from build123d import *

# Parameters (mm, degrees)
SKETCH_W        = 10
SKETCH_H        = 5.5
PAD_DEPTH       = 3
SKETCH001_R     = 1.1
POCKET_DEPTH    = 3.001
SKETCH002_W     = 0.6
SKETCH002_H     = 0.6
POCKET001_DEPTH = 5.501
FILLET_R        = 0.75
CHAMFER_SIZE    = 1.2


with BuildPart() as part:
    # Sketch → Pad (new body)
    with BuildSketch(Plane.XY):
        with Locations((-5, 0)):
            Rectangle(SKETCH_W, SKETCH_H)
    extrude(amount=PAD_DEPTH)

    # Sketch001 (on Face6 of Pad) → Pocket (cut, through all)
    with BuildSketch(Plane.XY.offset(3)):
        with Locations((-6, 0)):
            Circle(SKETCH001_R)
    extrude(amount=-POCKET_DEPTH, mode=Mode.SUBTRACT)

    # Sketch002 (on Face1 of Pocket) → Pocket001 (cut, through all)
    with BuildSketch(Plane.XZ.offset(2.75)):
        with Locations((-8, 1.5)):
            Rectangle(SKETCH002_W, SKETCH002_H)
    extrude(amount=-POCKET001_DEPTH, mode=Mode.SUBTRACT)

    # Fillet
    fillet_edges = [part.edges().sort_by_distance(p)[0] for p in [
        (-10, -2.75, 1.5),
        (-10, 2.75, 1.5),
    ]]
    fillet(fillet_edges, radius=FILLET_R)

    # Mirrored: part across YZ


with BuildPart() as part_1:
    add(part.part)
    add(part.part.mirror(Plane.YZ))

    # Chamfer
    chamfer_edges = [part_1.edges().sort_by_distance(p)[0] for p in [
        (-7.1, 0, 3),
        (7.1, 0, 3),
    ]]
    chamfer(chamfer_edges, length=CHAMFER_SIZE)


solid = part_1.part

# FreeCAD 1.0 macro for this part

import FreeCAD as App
import Part
import Sketcher


def edges_at(feature, points):
    """Names of the edges that pass closest to the given points."""
    edges = feature.Shape.Edges
    near = lambda p: min(range(len(edges)), key=lambda i: edges[i].distToShape(Part.Vertex(*p))[0])
    return sorted({f"Edge{near(p) + 1}" for p in points})

doc = App.newDocument("Part")
body = doc.addObject("PartDesign::Body", "Body")

sketch1 = body.newObject("Sketcher::SketchObject", "Sketch")
sketch1.AttachmentSupport = (doc.getObject("XY_Plane"), [""])
sketch1.MapMode = "FlatFace"
sketch1.addGeometry(Part.LineSegment(App.Vector(-10, 3, 0), App.Vector(-10, -3, 0)), False)
sketch1.addGeometry(Part.LineSegment(App.Vector(-10, -3, 0), App.Vector(0, -3, 0)), False)
sketch1.addGeometry(Part.LineSegment(App.Vector(0, -3, 0), App.Vector(0, 3, 0)), False)
sketch1.addGeometry(Part.LineSegment(App.Vector(0, 3, 0), App.Vector(-10, 3, 0)), False)
sketch1.addConstraint(Sketcher.Constraint("Coincident", 0, 2, 1, 1))
sketch1.addConstraint(Sketcher.Constraint("Coincident", 1, 2, 2, 1))
sketch1.addConstraint(Sketcher.Constraint("Coincident", 2, 2, 3, 1))
sketch1.addConstraint(Sketcher.Constraint("Coincident", 3, 2, 0, 1))
sketch1.addConstraint(Sketcher.Constraint("Vertical", 0))
sketch1.addConstraint(Sketcher.Constraint("Horizontal", 1))
sketch1.addConstraint(Sketcher.Constraint("Vertical", 2))
sketch1.addConstraint(Sketcher.Constraint("Horizontal", 3))
sketch1.addConstraint(Sketcher.Constraint("Symmetric", 1, 2, 2, 2, -1, 1))
sketch1.addConstraint(Sketcher.Constraint("DistanceX", 1, 1, 1, 2, 10.0))
sketch1.addConstraint(Sketcher.Constraint("DistanceY", 0, 2, 0, 1, 5.5))
pad1 = body.newObject("PartDesign::Pad", "Pad")
pad1.Profile = sketch1
pad1.Length = 3

sketch2 = body.newObject("Sketcher::SketchObject", "Sketch001")
sketch2.AttachmentSupport = (doc.getObject("XY_Plane"), [""])
sketch2.MapMode = "FlatFace"
sketch2.AttachmentOffset = App.Placement(App.Vector(0, 0, 3), App.Rotation())
sketch2.addGeometry(Part.Circle(App.Vector(-6, 0, 0), App.Vector(0, 0, 1), 1.1), False)
sketch2.addConstraint(Sketcher.Constraint("PointOnObject", 0, 3, -1))
sketch2.addConstraint(Sketcher.Constraint("Diameter", 0, 2.2))
sketch2.addConstraint(Sketcher.Constraint("DistanceX", 0, 3, -1, 1, 6.0))
pocket1 = body.newObject("PartDesign::Pocket", "Pocket")
pocket1.Profile = sketch2
pocket1.Type = "ThroughAll"

sketch3 = body.newObject("Sketcher::SketchObject", "Sketch002")
sketch3.AttachmentSupport = (doc.getObject("XZ_Plane"), [""])
sketch3.MapMode = "FlatFace"
sketch3.AttachmentOffset = App.Placement(App.Vector(0, 0, 2.75), App.Rotation())
sketch3.addGeometry(Part.LineSegment(App.Vector(-8.3, 1.8, 0), App.Vector(-8.3, 1.2, 0)), False)
sketch3.addGeometry(Part.LineSegment(App.Vector(-8.3, 1.2, 0), App.Vector(-7.7, 1.2, 0)), False)
sketch3.addGeometry(Part.LineSegment(App.Vector(-7.7, 1.2, 0), App.Vector(-7.7, 1.8, 0)), False)
sketch3.addGeometry(Part.LineSegment(App.Vector(-7.7, 1.8, 0), App.Vector(-8.3, 1.8, 0)), False)
sketch3.addConstraint(Sketcher.Constraint("Coincident", 0, 2, 1, 1))
sketch3.addConstraint(Sketcher.Constraint("Coincident", 1, 2, 2, 1))
sketch3.addConstraint(Sketcher.Constraint("Coincident", 2, 2, 3, 1))
sketch3.addConstraint(Sketcher.Constraint("Coincident", 3, 2, 0, 1))
sketch3.addConstraint(Sketcher.Constraint("Vertical", 0))
sketch3.addConstraint(Sketcher.Constraint("Horizontal", 1))
sketch3.addConstraint(Sketcher.Constraint("Vertical", 2))
sketch3.addConstraint(Sketcher.Constraint("Horizontal", 3))
sketch3.addConstraint(Sketcher.Constraint("Equal", 3, 0))
sketch3.addConstraint(Sketcher.Constraint("DistanceX", 1, 1, 1, 2, 0.6))
sketch3.addConstraint(Sketcher.Constraint("DistanceX", 0, 2, -1, 1, 8.3))
sketch3.addConstraint(Sketcher.Constraint("DistanceY", -1, 1, 0, 2, 1.2))
pocket2 = body.newObject("PartDesign::Pocket", "Pocket001")
pocket2.Profile = sketch3
pocket2.Type = "ThroughAll"
doc.recompute()

fillet = body.newObject("PartDesign::Fillet", "Fillet")
fillet.Base = (pocket2, edges_at(pocket2, [(-10, -2.75, 1.5), (-10, 2.75, 1.5)]))
fillet.Radius = 0.75
body2 = doc.addObject("PartDesign::Body", "Body001")
doc.recompute()

body2.BaseFeature = body
doc.recompute()

mirroring = doc.addObject("Part::Mirroring", "Mirroring")
mirroring.Source = body
mirroring.Base = App.Vector(0, 0, 0)
mirroring.Normal = App.Vector(1, 0, 0)
body3 = doc.addObject("PartDesign::Body", "Body002")
body3.BaseFeature = mirroring
boolean = body2.newObject("PartDesign::Boolean", "Boolean")
boolean.Type = "Fuse"
boolean.addObjects([body3])
doc.recompute()

chamfer = body2.newObject("PartDesign::Chamfer", "Chamfer")
chamfer.Base = (boolean, edges_at(boolean, [(-7.1, 0, 3), (7.1, 0, 3)]))
chamfer.Size = 1.2
mirroring.Visibility = False

doc.recompute()
